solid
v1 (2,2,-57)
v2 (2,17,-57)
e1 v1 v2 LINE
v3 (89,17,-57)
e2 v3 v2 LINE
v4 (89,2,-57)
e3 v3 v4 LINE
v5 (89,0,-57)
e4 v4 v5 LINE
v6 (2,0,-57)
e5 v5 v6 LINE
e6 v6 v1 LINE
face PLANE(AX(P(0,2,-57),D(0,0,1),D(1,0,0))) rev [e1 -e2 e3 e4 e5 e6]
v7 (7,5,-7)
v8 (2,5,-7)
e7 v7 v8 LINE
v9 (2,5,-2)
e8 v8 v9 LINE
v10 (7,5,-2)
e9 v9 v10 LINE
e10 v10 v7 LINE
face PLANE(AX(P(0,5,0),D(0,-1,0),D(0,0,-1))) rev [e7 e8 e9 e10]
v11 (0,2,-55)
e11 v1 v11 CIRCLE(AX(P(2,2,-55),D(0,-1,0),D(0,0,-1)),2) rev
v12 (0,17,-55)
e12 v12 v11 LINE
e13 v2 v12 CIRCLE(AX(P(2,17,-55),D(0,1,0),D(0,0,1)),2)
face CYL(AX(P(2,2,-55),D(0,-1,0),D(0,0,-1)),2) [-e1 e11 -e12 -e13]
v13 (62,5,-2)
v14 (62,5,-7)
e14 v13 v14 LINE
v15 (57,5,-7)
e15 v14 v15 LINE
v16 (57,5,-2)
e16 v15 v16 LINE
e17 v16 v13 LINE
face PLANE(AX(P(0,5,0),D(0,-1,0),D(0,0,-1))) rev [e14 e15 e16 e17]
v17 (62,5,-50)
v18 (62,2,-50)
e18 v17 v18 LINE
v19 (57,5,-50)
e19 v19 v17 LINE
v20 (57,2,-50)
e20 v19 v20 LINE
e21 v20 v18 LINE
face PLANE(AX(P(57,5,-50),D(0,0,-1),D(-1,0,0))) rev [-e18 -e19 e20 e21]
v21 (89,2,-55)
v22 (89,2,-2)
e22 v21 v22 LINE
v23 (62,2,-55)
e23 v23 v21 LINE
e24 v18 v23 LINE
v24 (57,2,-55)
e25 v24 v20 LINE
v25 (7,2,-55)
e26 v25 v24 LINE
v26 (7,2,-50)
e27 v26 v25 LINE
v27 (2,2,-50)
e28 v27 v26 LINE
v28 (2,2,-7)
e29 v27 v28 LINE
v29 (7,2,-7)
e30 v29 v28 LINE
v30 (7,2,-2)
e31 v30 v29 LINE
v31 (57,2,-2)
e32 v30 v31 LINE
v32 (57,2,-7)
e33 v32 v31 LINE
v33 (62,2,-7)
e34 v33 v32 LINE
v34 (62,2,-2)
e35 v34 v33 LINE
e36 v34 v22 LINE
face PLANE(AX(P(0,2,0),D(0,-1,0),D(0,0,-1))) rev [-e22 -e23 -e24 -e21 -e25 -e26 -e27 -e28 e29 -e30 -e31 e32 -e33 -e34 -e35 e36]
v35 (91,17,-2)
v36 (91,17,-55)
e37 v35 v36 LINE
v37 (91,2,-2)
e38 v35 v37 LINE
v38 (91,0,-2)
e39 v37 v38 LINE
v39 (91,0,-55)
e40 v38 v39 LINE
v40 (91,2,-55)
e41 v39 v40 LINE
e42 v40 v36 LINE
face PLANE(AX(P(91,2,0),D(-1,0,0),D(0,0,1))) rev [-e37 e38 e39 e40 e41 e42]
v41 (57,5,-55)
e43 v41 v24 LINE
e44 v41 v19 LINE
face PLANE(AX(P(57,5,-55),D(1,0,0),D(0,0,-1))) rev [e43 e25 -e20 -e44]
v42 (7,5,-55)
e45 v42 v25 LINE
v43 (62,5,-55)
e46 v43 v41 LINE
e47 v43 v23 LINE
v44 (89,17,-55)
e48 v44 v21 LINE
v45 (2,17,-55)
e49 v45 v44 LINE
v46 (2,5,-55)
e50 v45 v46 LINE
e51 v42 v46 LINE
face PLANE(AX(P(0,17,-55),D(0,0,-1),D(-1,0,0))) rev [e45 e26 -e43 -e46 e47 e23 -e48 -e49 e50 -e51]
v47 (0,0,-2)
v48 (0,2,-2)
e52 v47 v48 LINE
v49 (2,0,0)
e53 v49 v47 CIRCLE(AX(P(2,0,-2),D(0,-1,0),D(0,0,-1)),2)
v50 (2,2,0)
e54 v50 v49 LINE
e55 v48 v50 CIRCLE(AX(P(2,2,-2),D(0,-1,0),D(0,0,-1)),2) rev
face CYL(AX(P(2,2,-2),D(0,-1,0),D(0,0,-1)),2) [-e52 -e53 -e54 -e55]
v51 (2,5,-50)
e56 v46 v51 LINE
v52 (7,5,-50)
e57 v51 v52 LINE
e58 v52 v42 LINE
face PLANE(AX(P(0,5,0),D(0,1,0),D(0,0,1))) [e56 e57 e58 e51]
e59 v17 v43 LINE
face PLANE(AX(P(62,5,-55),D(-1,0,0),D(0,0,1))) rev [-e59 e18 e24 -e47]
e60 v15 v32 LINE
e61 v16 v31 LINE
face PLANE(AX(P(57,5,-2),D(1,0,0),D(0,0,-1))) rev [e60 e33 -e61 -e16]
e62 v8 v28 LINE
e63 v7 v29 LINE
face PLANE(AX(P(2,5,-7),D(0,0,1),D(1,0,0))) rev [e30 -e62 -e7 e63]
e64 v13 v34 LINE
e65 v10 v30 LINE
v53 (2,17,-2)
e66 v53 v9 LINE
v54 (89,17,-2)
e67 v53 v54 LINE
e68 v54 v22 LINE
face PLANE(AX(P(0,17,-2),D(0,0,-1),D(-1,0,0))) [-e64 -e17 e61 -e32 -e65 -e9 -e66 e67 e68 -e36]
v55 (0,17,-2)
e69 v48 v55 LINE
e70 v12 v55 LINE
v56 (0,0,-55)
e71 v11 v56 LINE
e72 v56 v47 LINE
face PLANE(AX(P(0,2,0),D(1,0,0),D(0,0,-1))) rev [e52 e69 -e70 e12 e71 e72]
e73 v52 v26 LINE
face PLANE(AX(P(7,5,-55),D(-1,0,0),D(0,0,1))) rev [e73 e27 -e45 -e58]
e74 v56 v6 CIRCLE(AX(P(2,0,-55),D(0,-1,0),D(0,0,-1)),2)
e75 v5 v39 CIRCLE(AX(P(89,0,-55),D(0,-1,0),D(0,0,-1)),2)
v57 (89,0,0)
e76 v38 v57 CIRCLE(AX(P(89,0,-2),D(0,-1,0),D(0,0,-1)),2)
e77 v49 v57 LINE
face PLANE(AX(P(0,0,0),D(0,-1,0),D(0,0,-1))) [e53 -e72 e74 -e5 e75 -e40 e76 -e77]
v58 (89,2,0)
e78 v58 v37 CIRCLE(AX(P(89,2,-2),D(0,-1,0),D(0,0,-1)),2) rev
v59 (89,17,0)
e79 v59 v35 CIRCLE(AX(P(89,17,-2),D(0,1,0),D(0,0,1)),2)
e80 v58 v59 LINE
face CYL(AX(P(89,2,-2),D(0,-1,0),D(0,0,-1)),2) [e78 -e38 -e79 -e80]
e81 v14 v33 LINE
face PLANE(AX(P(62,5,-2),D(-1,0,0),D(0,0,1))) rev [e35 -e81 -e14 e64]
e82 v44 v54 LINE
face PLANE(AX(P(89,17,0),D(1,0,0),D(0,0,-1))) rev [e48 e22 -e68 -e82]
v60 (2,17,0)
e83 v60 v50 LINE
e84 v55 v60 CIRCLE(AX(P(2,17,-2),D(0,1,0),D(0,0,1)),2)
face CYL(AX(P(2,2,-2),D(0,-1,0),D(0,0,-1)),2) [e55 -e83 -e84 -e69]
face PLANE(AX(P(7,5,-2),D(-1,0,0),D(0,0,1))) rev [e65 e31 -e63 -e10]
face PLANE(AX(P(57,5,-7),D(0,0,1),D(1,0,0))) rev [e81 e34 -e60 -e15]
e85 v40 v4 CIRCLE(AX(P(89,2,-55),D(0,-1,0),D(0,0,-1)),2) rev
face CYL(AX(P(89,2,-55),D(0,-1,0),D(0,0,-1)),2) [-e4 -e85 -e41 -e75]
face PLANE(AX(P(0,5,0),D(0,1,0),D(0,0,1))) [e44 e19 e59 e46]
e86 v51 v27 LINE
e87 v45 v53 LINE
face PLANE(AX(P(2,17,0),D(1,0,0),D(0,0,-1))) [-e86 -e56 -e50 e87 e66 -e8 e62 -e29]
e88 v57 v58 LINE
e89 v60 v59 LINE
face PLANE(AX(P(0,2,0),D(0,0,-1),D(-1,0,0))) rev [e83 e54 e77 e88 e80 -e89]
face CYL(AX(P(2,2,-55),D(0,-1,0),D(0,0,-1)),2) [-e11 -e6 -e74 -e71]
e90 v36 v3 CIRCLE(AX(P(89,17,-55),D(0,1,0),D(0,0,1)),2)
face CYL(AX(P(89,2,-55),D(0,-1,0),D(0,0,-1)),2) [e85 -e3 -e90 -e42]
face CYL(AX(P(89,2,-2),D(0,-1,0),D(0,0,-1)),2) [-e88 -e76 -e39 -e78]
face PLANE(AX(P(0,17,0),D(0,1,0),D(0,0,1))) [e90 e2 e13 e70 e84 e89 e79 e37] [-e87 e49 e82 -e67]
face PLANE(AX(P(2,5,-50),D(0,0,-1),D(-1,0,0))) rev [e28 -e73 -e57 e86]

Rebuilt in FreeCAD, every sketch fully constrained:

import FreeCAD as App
import Part
import Sketcher

V = App.Vector


def edges_at(feature, points):
    """Names of the edges that pass closest to the given points."""
    edges = feature.Shape.Edges
    near = lambda p: min(range(len(edges)), key=lambda i: edges[i].distToShape(Part.Vertex(*p))[0])
    return sorted({f"Edge{near(p) + 1}" for p in points})


def add_polygon(sketch, points):
    """Adds a closed chain of lines whose ends are joined by coincident constraints."""
    first, n = sketch.GeometryCount, len(points)
    for a, b in zip(points, points[1:] + points[:1]):
        sketch.addGeometry(Part.LineSegment(App.Vector(*a, 0), App.Vector(*b, 0)), False)
    for i in range(n):
        sketch.addConstraint(Sketcher.Constraint("Coincident", first + i, 2, first + (i + 1) % n, 1))

doc = App.newDocument("Part")
body = doc.addObject("PartDesign::Body", "Body")

# Sketch on XZ plane
sketch1 = doc.addObject("Sketcher::SketchObject", "Sketch")
body.addObject(sketch1)
sketch1.AttachmentSupport = (doc.XZ_Plane, [""])
sketch1.MapMode = "FlatFace"
add_polygon(sketch1, [(0, -57), (0, 0), (91, 0), (91, -57)])  # lines 0-3
sketch1.addConstraint([
    Sketcher.Constraint("Vertical", 0),
    Sketcher.Constraint("Horizontal", 1),
    Sketcher.Constraint("Vertical", 2),
    Sketcher.Constraint("Horizontal", 3),
    Sketcher.Constraint("Coincident", 0, 2, -1, 1),
    Sketcher.Constraint("DistanceX", 1, 1, 1, 2, 91.0),
    Sketcher.Constraint("DistanceY", 0, 1, 0, 2, 57.0),
])
pad1 = doc.addObject("PartDesign::Pad", "Pad")
body.addObject(pad1)
pad1.Profile = sketch1
pad1.Length = 2
pad1.Reversed = True
doc.recompute()

fillet = doc.addObject("PartDesign::Fillet", "Fillet")
body.addObject(fillet)
fillet.Base = (pad1, edges_at(pad1, [
    (0, 1, -57),
    (91, 1, -57),
    (91, 1, 0),
    (0, 1, 0),
]))
fillet.Radius = 2

# Sketch on XZ plane
sketch2 = doc.addObject("Sketcher::SketchObject", "Sketch001")
body.addObject(sketch2)
sketch2.AttachmentSupport = (doc.XZ_Plane, [""])
sketch2.MapMode = "FlatFace"
sketch2.AttachmentOffset = App.Placement(V(0, 0, -2), App.Rotation())
add_polygon(sketch2, [(0, -57), (0, 0), (91, 0), (91, -57)])  # lines 0-3
add_polygon(sketch2, [(89, -2), (2, -2), (2, -55), (89, -55)])  # lines 4-7
sketch2.addConstraint([
    Sketcher.Constraint("Vertical", 0),
    Sketcher.Constraint("Horizontal", 1),
    Sketcher.Constraint("Vertical", 2),
    Sketcher.Constraint("Horizontal", 3),
    Sketcher.Constraint("Horizontal", 4),
    Sketcher.Constraint("Vertical", 5),
    Sketcher.Constraint("Horizontal", 6),
    Sketcher.Constraint("Vertical", 7),
    Sketcher.Constraint("Coincident", 0, 2, -1, 1),
    Sketcher.Constraint("DistanceX", 1, 1, 1, 2, 91.0),
    Sketcher.Constraint("DistanceX", 4, 2, 4, 1, 87.0),
    Sketcher.Constraint("DistanceY", 0, 1, 0, 2, 57.0),
    Sketcher.Constraint("DistanceY", 5, 2, 5, 1, 53.0),
    Sketcher.Constraint("DistanceX", -1, 1, 4, 2, 2.0),
    Sketcher.Constraint("DistanceY", 4, 2, -1, 1, 2.0),
])
pad2 = doc.addObject("PartDesign::Pad", "Pad001")
body.addObject(pad2)
pad2.Profile = sketch2
pad2.Length = 15
pad2.Reversed = True
doc.recompute()

fillet2 = doc.addObject("PartDesign::Fillet", "Fillet001")
body.addObject(fillet2)
fillet2.Base = (pad2, edges_at(pad2, [
    (0, 9.5, -57),
    (91, 9.5, -57),
    (91, 9.5, 0),
    (0, 9.5, 0),
]))
fillet2.Radius = 2

# Sketch on XZ plane
sketch3 = doc.addObject("Sketcher::SketchObject", "Sketch002")
body.addObject(sketch3)
sketch3.AttachmentSupport = (doc.XZ_Plane, [""])
sketch3.MapMode = "FlatFace"
sketch3.AttachmentOffset = App.Placement(V(0, 0, -2), App.Rotation())
add_polygon(sketch3, [(2, -55), (2, -50), (7, -50), (7, -55)])  # lines 0-3
add_polygon(sketch3, [(2, -7), (2, -2), (7, -2), (7, -7)])  # lines 4-7
add_polygon(sketch3, [(57, -55), (57, -50), (62, -50), (62, -55)])  # lines 8-11
add_polygon(sketch3, [(57, -7), (57, -2), (62, -2), (62, -7)])  # lines 12-15
sketch3.addConstraint([
    Sketcher.Constraint("Vertical", 0),
    Sketcher.Constraint("Horizontal", 1),
    Sketcher.Constraint("Vertical", 2),
    Sketcher.Constraint("Horizontal", 3),
    Sketcher.Constraint("Vertical", 4),
    Sketcher.Constraint("Horizontal", 5),
    Sketcher.Constraint("Vertical", 6),
    Sketcher.Constraint("Horizontal", 7),
    Sketcher.Constraint("Vertical", 8),
    Sketcher.Constraint("Horizontal", 9),
    Sketcher.Constraint("Vertical", 10),
    Sketcher.Constraint("Horizontal", 11),
    Sketcher.Constraint("Vertical", 12),
    Sketcher.Constraint("Horizontal", 13),
    Sketcher.Constraint("Vertical", 14),
    Sketcher.Constraint("Horizontal", 15),
    Sketcher.Constraint("Horizontal", 1, 2, 8, 2),
    Sketcher.Constraint("Horizontal", 3, 2, 10, 2),
    Sketcher.Constraint("Horizontal", 5, 2, 12, 2),
    Sketcher.Constraint("Horizontal", 7, 2, 14, 2),
    Sketcher.Constraint("Vertical", 3, 2, 4, 2),
    Sketcher.Constraint("Vertical", 2, 2, 5, 2),
    Sketcher.Constraint("Vertical", 11, 2, 12, 2),
    Sketcher.Constraint("Vertical", 10, 2, 13, 2),
    Sketcher.Constraint("Equal", 7, 9),
    Sketcher.Constraint("Equal", 15, 0),
    Sketcher.Constraint("Equal", 2, 4),
    Sketcher.Constraint("DistanceX", 1, 1, 1, 2, 5.0),
    Sketcher.Constraint("DistanceX", -1, 1, 0, 2, 2.0),
    Sketcher.Constraint("DistanceY", 0, 2, -1, 1, 50.0),
    Sketcher.Constraint("DistanceY", 4, 2, -1, 1, 2.0),
    Sketcher.Constraint("DistanceX", -1, 1, 8, 2, 57.0),
])
pad3 = doc.addObject("PartDesign::Pad", "Pad002")
body.addObject(pad3)
pad3.Profile = sketch3
pad3.Length = 3
pad3.Reversed = True

doc.recompute()
